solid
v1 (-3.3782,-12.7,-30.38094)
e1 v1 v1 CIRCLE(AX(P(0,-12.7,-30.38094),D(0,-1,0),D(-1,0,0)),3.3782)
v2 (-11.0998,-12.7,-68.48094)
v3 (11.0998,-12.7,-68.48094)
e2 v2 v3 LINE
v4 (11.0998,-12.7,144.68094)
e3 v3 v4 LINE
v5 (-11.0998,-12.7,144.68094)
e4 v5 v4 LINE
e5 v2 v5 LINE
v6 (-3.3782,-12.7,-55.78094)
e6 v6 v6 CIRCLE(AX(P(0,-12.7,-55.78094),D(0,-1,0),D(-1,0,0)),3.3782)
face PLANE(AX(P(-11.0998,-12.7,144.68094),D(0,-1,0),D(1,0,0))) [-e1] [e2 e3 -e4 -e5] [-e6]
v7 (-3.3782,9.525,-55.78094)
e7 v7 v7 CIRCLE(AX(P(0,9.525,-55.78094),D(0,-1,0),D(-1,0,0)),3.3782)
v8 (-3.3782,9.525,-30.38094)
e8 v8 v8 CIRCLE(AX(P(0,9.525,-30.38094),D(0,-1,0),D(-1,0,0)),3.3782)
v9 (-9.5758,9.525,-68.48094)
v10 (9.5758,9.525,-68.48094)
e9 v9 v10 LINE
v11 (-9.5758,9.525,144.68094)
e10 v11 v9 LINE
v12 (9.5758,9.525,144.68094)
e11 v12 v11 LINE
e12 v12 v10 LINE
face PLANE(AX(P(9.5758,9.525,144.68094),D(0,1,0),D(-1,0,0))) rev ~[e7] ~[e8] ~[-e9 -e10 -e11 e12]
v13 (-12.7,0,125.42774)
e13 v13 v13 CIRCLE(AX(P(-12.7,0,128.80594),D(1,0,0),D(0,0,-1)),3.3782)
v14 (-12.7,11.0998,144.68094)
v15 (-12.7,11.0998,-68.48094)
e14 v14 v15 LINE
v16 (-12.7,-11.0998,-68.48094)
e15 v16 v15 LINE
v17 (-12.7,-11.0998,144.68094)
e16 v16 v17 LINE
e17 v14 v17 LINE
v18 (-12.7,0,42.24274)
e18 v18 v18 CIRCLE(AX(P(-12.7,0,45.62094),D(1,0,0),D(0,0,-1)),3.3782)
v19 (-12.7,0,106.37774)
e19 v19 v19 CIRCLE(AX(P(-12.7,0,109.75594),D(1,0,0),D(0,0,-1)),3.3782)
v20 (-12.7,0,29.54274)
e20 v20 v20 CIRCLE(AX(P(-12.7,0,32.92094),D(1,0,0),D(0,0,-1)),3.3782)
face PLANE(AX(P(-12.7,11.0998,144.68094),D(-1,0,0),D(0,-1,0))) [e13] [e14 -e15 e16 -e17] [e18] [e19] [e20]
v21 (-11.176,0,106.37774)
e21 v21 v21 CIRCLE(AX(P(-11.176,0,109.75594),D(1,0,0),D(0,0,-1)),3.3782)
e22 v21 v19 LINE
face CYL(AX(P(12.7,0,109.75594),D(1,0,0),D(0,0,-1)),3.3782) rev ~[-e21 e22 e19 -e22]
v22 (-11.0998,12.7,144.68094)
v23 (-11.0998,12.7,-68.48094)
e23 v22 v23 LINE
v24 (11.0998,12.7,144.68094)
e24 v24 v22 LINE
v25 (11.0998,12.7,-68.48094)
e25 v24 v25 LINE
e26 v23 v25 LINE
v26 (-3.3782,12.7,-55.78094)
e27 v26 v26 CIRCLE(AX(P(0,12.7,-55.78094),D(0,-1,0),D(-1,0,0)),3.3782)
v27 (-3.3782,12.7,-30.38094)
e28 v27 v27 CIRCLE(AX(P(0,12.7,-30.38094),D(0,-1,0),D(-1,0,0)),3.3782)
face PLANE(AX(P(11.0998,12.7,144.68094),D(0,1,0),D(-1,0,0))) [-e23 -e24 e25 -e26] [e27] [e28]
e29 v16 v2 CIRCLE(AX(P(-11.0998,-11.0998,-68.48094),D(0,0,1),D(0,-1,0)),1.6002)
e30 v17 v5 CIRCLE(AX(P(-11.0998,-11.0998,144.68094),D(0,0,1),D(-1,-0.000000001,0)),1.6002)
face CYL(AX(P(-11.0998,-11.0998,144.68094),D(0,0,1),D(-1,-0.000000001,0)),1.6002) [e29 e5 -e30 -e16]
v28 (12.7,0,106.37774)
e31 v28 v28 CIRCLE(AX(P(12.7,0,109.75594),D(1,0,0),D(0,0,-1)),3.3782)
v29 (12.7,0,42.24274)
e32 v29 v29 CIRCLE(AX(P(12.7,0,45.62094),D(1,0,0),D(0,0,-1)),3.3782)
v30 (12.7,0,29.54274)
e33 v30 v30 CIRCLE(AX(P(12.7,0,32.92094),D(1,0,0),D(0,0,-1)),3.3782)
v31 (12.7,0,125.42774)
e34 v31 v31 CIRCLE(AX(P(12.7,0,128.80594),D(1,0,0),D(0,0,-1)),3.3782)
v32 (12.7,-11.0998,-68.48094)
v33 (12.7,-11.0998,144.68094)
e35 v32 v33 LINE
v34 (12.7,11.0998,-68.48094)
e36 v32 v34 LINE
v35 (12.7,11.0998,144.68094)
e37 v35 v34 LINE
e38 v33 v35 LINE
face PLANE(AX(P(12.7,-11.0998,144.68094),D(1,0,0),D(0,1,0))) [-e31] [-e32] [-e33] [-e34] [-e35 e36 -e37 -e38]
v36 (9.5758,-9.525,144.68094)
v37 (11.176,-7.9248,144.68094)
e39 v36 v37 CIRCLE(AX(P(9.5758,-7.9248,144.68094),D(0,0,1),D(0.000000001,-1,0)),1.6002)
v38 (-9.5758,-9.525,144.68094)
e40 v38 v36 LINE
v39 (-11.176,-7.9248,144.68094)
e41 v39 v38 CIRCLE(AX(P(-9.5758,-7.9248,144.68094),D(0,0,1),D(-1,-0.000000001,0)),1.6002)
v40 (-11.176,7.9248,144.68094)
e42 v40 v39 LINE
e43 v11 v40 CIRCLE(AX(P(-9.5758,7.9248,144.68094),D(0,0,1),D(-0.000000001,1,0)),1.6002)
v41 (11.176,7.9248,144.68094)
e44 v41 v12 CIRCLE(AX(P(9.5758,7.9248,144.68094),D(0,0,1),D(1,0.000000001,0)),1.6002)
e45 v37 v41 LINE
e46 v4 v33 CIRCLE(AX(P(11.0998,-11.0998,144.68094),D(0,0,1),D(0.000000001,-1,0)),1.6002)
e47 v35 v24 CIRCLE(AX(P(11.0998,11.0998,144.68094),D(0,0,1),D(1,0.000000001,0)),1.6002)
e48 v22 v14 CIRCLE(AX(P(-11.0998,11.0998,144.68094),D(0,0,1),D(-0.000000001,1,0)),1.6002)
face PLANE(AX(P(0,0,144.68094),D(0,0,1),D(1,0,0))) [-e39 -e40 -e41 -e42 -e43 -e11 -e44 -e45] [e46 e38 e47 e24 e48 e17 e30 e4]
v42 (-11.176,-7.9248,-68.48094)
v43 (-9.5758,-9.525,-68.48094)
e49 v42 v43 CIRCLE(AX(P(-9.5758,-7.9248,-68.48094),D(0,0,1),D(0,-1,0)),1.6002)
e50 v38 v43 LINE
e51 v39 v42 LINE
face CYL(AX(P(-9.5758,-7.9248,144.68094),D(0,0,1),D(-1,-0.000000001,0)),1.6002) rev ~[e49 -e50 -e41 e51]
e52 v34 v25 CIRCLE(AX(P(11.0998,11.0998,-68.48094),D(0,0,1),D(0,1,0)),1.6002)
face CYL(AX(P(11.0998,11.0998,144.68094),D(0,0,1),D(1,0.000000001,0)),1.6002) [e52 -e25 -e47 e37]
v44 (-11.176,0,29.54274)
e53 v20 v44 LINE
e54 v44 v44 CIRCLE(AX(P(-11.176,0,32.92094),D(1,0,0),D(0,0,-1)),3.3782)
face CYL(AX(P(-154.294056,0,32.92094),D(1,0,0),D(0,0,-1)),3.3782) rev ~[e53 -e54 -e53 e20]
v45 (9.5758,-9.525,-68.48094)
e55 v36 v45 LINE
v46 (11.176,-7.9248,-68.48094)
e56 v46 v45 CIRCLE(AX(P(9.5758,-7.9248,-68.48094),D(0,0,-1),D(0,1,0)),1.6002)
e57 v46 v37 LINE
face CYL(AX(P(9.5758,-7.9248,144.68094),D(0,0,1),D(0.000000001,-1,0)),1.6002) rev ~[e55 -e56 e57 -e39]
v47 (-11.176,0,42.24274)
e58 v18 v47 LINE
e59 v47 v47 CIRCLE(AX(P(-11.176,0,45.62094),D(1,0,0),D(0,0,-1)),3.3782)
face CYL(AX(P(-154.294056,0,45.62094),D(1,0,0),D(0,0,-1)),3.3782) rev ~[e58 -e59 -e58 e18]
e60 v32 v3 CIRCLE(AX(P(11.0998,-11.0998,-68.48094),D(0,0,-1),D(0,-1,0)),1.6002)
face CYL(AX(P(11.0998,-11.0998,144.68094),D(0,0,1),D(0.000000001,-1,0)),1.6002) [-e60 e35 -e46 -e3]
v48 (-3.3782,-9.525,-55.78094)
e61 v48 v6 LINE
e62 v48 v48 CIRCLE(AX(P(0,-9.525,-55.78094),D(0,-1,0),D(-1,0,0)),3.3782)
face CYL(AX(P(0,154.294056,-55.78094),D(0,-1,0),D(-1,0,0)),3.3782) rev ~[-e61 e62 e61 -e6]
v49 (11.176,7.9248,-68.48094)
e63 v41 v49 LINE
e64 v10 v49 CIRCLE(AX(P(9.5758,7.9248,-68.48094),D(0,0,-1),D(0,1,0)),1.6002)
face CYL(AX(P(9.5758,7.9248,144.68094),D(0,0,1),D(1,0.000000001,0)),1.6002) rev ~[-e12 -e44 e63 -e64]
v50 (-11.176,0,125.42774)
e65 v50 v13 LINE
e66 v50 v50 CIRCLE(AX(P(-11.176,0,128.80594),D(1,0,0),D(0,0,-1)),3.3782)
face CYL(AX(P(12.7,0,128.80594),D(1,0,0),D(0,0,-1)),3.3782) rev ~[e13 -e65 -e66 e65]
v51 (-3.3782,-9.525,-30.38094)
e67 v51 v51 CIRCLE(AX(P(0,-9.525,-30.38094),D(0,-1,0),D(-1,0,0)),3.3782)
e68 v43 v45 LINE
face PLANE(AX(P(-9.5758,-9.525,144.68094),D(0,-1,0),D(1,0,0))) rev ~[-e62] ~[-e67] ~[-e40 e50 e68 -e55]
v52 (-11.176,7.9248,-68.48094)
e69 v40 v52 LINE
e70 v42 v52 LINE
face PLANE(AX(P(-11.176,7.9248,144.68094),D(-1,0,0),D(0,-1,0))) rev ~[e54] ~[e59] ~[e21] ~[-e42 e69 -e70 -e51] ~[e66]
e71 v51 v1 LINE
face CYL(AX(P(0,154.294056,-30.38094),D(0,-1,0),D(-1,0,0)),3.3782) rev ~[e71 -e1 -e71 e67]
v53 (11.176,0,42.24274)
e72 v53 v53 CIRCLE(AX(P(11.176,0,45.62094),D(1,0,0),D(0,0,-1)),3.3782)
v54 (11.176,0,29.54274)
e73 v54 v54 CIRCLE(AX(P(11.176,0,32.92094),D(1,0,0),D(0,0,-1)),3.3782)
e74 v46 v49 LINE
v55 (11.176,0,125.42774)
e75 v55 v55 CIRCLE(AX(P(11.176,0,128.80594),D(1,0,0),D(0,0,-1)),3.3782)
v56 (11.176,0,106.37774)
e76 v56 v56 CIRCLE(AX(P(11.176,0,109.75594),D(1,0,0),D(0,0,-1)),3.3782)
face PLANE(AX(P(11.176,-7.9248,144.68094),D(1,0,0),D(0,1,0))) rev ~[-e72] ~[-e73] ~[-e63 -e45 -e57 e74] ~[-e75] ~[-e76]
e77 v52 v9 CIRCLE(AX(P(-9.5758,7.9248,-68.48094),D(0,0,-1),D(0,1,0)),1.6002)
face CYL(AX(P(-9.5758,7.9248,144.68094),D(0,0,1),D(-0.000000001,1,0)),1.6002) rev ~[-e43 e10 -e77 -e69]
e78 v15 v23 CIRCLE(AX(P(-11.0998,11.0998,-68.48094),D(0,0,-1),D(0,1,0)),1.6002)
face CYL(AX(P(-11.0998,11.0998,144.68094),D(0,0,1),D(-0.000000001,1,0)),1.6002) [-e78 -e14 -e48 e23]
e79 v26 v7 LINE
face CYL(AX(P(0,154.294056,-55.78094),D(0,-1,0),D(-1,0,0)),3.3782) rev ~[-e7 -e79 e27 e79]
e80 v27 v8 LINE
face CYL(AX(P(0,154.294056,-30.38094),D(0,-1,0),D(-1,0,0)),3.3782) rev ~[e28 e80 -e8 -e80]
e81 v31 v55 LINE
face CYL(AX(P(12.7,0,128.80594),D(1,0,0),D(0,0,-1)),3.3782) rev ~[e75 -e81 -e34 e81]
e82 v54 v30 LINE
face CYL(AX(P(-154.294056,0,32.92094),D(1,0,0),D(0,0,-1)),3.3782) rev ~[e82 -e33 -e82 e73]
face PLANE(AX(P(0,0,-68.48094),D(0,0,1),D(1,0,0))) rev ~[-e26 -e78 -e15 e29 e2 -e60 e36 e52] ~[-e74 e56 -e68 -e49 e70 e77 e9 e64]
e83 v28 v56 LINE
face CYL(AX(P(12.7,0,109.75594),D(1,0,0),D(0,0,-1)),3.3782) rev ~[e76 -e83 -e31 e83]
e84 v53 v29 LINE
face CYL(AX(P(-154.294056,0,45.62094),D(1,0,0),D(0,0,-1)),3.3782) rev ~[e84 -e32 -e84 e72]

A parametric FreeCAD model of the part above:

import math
import FreeCAD as App
import Part
import Sketcher
from FreeCAD import Vector
Q = App.Units.Quantity


def edges_at(feature, points):
    """Names of the edges that pass closest to the given points."""
    edges = feature.Shape.Edges
    near = lambda p: min(range(len(edges)), key=lambda i: edges[i].distToShape(Part.Vertex(*p))[0])
    return sorted({f"Edge{near(p) + 1}" for p in points})


def add_polygon(sketch, points):
    """Adds a closed chain of lines whose ends are joined by coincident constraints."""
    first, n = sketch.GeometryCount, len(points)
    for a, b in zip(points, points[1:] + points[:1]):
        sketch.addGeometry(Part.LineSegment(App.Vector(*a, 0), App.Vector(*b, 0)), False)
    for i in range(n):
        sketch.addConstraint(Sketcher.Constraint("Coincident", first + i, 2, first + (i + 1) % n, 1))

doc = App.newDocument("Part")
params = doc.addObject("Spreadsheet::Sheet", "Params")
for row, (alias, value) in enumerate([
    ("sketch1_width", "1 in"),
    ("sketch1_width2", "0.88 in"),
    ("sketch1_height", "0.75 in"),
    ("pad1_length", "5.3922 in"),
    ("fillet_radius", "0.063 in"),
    ("sketch2_diameter", "0.266 in"),
    ("hole_diameter", "0.266 in"),
    ("sketch3_diameter", "0.266 in"),
    ("hole2_diameter", "0.266 in"),
    ("sketch4_radius", "0.063 in"),
    ("sketch4_width", "0.754 in"),
    ("sketch4_height", "0.624 in"),
    ("pad2_length", "3 in"),
    ("sketch5_diameter", "0.266 in"),
], start=1):
    params.set(f"A{row}", alias)
    params.set(f"B{row}", "=" + value)
    params.setAlias(f"B{row}", alias)

body = doc.addObject("PartDesign::Body", "Body")

# Sketch on XY plane
sketch1 = body.newObject("Sketcher::SketchObject", "Sketch")
sketch1.AttachmentSupport = (doc.getObject("XY_Plane"), [""])
sketch1.MapMode = "FlatFace"
add_polygon(sketch1, [(-12.7, 12.7), (-12.7, -12.7), (12.7, -12.7), (12.7, 12.7)])  # lines 0-3
add_polygon(sketch1, [(11.176, -9.525), (-11.176, -9.525), (-11.176, 9.525), (11.176, 9.525)])  # lines 4-7
sketch1.addConstraint(Sketcher.Constraint("Vertical", 0))
sketch1.addConstraint(Sketcher.Constraint("Horizontal", 1))
sketch1.addConstraint(Sketcher.Constraint("Vertical", 2))
sketch1.addConstraint(Sketcher.Constraint("Horizontal", 3))
sketch1.addConstraint(Sketcher.Constraint("Horizontal", 4))
sketch1.addConstraint(Sketcher.Constraint("Vertical", 5))
sketch1.addConstraint(Sketcher.Constraint("Horizontal", 6))
sketch1.addConstraint(Sketcher.Constraint("Vertical", 7))
sketch1.addConstraint(Sketcher.Constraint("Symmetric", 0, 2, 2, 2, -1, 1))
sketch1.addConstraint(Sketcher.Constraint("Symmetric", 4, 2, 6, 2, -1, 1))
sketch1.addConstraint(Sketcher.Constraint("Equal", 3, 0))
sketch1.addConstraint(Sketcher.Constraint("DistanceX", 1, 1, 1, 2, Q("1 in")))
sketch1.addConstraint(Sketcher.Constraint("DistanceX", 4, 2, 4, 1, Q("0.88 in")))
sketch1.addConstraint(Sketcher.Constraint("DistanceY", 5, 1, 5, 2, Q("0.75 in")))
sketch1.setExpression("Constraints[19]", "Params.sketch1_width")
sketch1.setExpression("Constraints[20]", "Params.sketch1_width2")
sketch1.setExpression("Constraints[21]", "Params.sketch1_height")
pad1 = body.newObject("PartDesign::Pad", "Pad")
pad1.Profile = sketch1
pad1.setExpression("Length", "Params.pad1_length")
pad1.Midplane = True
doc.recompute()

fillet = body.newObject("PartDesign::Fillet", "Fillet")
fillet.Base = (pad1, edges_at(pad1, [
    (11.176, -9.525, 0),
    (11.176, 9.525, 0),
    (-11.176, 9.525, 0),
    (-11.176, -9.525, 0),
    (12.7, -12.7, 0),
    (-12.7, -12.7, 0),
    (-12.7, 12.7, 0),
    (12.7, 12.7, 0),
]))
fillet.setExpression("Radius", "Params.fillet_radius")

# Sketch on YZ plane
sketch2 = body.newObject("Sketcher::SketchObject", "Sketch001")
sketch2.AttachmentSupport = (doc.getObject("YZ_Plane"), [""])
sketch2.MapMode = "FlatFace"
sketch2.AttachmentOffset = App.Placement(Vector(0, 0, -0.5 * 25.4), App.Rotation())
sketch2.addGeometry(Part.Circle(Vector(0, 32.92094, 0), Vector(0, 0, 1), 3.3782), False)
sketch2.addGeometry(Part.Circle(Vector(0, 45.62094, 0), Vector(0, 0, 1), 3.3782), False)
sketch2.addConstraint(Sketcher.Constraint("Equal", 0, 1))
sketch2.addConstraint(Sketcher.Constraint("PointOnObject", 0, 3, -2))
sketch2.addConstraint(Sketcher.Constraint("PointOnObject", 1, 3, -2))
sketch2.addConstraint(Sketcher.Constraint("Diameter", 0, Q("0.266 in")))
sketch2.addConstraint(Sketcher.Constraint("DistanceY", 0, 3, 1, 3, Q("0.5 in")))
sketch2.addConstraint(Sketcher.Constraint("DistanceY", -1, 1, 0, 3, Q("1.2961 in")))
sketch2.setExpression("Constraints[3]", "Params.sketch2_diameter")
doc.recompute()
hole = body.newObject("PartDesign::Hole", "Hole")
hole.Profile = sketch2
hole.ThreadType = "None"
hole.setExpression("Diameter", "Params.hole_diameter")
hole.DepthType = "ThroughAll"
hole.Reversed = True

# Sketch on XZ plane
sketch3 = body.newObject("Sketcher::SketchObject", "Sketch002")
sketch3.AttachmentSupport = (doc.getObject("XZ_Plane"), [""])
sketch3.MapMode = "FlatFace"
sketch3.AttachmentOffset = App.Placement(Vector(0, 0, -0.5 * 25.4), App.Rotation())
sketch3.addGeometry(Part.Circle(Vector(0, -55.78094, 0), Vector(0, 0, 1), 3.3782), False)
sketch3.addGeometry(Part.Circle(Vector(0, -30.38094, 0), Vector(0, 0, 1), 3.3782), False)
sketch3.addConstraint(Sketcher.Constraint("Equal", 0, 1))
sketch3.addConstraint(Sketcher.Constraint("PointOnObject", 0, 3, -2))
sketch3.addConstraint(Sketcher.Constraint("PointOnObject", 1, 3, -2))
sketch3.addConstraint(Sketcher.Constraint("Diameter", 0, Q("0.266 in")))
sketch3.addConstraint(Sketcher.Constraint("DistanceY", 0, 3, 1, 3, Q("1 in")))
sketch3.addConstraint(Sketcher.Constraint("DistanceY", 0, 3, -1, 1, Q("2.1961 in")))
sketch3.setExpression("Constraints[3]", "Params.sketch3_diameter")
doc.recompute()
hole2 = body.newObject("PartDesign::Hole", "Hole001")
hole2.Profile = sketch3
hole2.ThreadType = "None"
hole2.setExpression("Diameter", "Params.hole2_diameter")
hole2.DepthType = "ThroughAll"
hole2.Reversed = True

# Sketch on XY plane
sketch4 = body.newObject("Sketcher::SketchObject", "Sketch003")
sketch4.AttachmentSupport = (doc.getObject("XY_Plane"), [""])
sketch4.MapMode = "FlatFace"
sketch4.AttachmentOffset = App.Placement(Vector(0, 0, 5.6961 * 25.4), App.Rotation())
sketch4.addGeometry(Part.LineSegment(Vector(-12.7, 11.0998, 0), Vector(-12.7, -11.0998, 0)), False)
sketch4.addGeometry(Part.ArcOfCircle(Part.Circle(Vector(-11.0998, -11.0998, 0), Vector(0, 0, 1), 1.6002), math.radians(-180), math.radians(-90)), False)
sketch4.addGeometry(Part.LineSegment(Vector(-11.0998, -12.7, 0), Vector(11.0998, -12.7, 0)), False)
sketch4.addGeometry(Part.ArcOfCircle(Part.Circle(Vector(11.0998, -11.0998, 0), Vector(0, 0, 1), 1.6002), math.radians(-90), math.radians(0)), False)
sketch4.addGeometry(Part.LineSegment(Vector(12.7, -11.0998, 0), Vector(12.7, 11.0998, 0)), False)
sketch4.addGeometry(Part.ArcOfCircle(Part.Circle(Vector(11.0998, 11.0998, 0), Vector(0, 0, 1), 1.6002), math.radians(0), math.radians(90)), False)
sketch4.addGeometry(Part.LineSegment(Vector(11.0998, 12.7, 0), Vector(-11.0998, 12.7, 0)), False)
sketch4.addGeometry(Part.ArcOfCircle(Part.Circle(Vector(-11.0998, 11.0998, 0), Vector(0, 0, 1), 1.6002), math.radians(90), math.radians(180)), False)
sketch4.addGeometry(Part.LineSegment(Vector(11.176, 7.9248, 0), Vector(11.176, -7.9248, 0)), False)
sketch4.addGeometry(Part.ArcOfCircle(Part.Circle(Vector(9.5758, -7.9248, 0), Vector(0, 0, 1), 1.6002), math.radians(-90), math.radians(0)), False)
sketch4.addGeometry(Part.LineSegment(Vector(9.5758, -9.525, 0), Vector(-9.5758, -9.525, 0)), False)
sketch4.addGeometry(Part.ArcOfCircle(Part.Circle(Vector(-9.5758, -7.9248, 0), Vector(0, 0, 1), 1.6002), math.radians(-180), math.radians(-90)), False)
sketch4.addGeometry(Part.LineSegment(Vector(-11.176, -7.9248, 0), Vector(-11.176, 7.9248, 0)), False)
sketch4.addGeometry(Part.ArcOfCircle(Part.Circle(Vector(-9.5758, 7.9248, 0), Vector(0, 0, 1), 1.6002), math.radians(90), math.radians(180)), False)
sketch4.addGeometry(Part.LineSegment(Vector(-9.5758, 9.525, 0), Vector(9.5758, 9.525, 0)), False)
sketch4.addGeometry(Part.ArcOfCircle(Part.Circle(Vector(9.5758, 7.9248, 0), Vector(0, 0, 1), 1.6002), math.radians(0), math.radians(90)), False)
sketch4.addConstraint(Sketcher.Constraint("Tangent", 0, 2, 1, 1))
sketch4.addConstraint(Sketcher.Constraint("Tangent", 1, 2, 2, 1))
sketch4.addConstraint(Sketcher.Constraint("Tangent", 2, 2, 3, 1))
sketch4.addConstraint(Sketcher.Constraint("Tangent", 3, 2, 4, 1))
sketch4.addConstraint(Sketcher.Constraint("Tangent", 4, 2, 5, 1))
sketch4.addConstraint(Sketcher.Constraint("Tangent", 5, 2, 6, 1))
sketch4.addConstraint(Sketcher.Constraint("Tangent", 6, 2, 7, 1))
sketch4.addConstraint(Sketcher.Constraint("Tangent", 7, 2, 0, 1))
sketch4.addConstraint(Sketcher.Constraint("Tangent", 8, 2, 9, 2))
sketch4.addConstraint(Sketcher.Constraint("Tangent", 9, 1, 10, 1))
sketch4.addConstraint(Sketcher.Constraint("Tangent", 10, 2, 11, 2))
sketch4.addConstraint(Sketcher.Constraint("Tangent", 11, 1, 12, 1))
sketch4.addConstraint(Sketcher.Constraint("Tangent", 12, 2, 13, 2))
sketch4.addConstraint(Sketcher.Constraint("Tangent", 13, 1, 14, 1))
sketch4.addConstraint(Sketcher.Constraint("Tangent", 14, 2, 15, 2))
sketch4.addConstraint(Sketcher.Constraint("Tangent", 15, 1, 8, 1))
sketch4.addConstraint(Sketcher.Constraint("Vertical", 0))
sketch4.addConstraint(Sketcher.Constraint("Horizontal", 2))
sketch4.addConstraint(Sketcher.Constraint("Vertical", 4))
sketch4.addConstraint(Sketcher.Constraint("Horizontal", 6))
sketch4.addConstraint(Sketcher.Constraint("Vertical", 8))
sketch4.addConstraint(Sketcher.Constraint("Horizontal", 10))
sketch4.addConstraint(Sketcher.Constraint("Vertical", 12))
sketch4.addConstraint(Sketcher.Constraint("Horizontal", 14))
sketch4.addConstraint(Sketcher.Constraint("Equal", 1, 3))
sketch4.addConstraint(Sketcher.Constraint("Equal", 3, 5))
sketch4.addConstraint(Sketcher.Constraint("Equal", 5, 7))
sketch4.addConstraint(Sketcher.Constraint("Equal", 7, 9))
sketch4.addConstraint(Sketcher.Constraint("Equal", 9, 11))
sketch4.addConstraint(Sketcher.Constraint("Equal", 11, 13))
sketch4.addConstraint(Sketcher.Constraint("Equal", 13, 15))
sketch4.addConstraint(Sketcher.Constraint("Symmetric", 1, 3, 5, 3, -1, 1))
sketch4.addConstraint(Sketcher.Constraint("Symmetric", 9, 3, 13, 3, -1, 1))
sketch4.addConstraint(Sketcher.Constraint("Equal", 6, 0))
sketch4.addConstraint(Sketcher.Constraint("Radius", 1, Q("0.063 in")))
sketch4.addConstraint(Sketcher.Constraint("DistanceX", 0, 2, -1, 1, Q("0.5 in")))
sketch4.addConstraint(Sketcher.Constraint("DistanceX", 10, 2, 10, 1, Q("0.754 in")))
sketch4.addConstraint(Sketcher.Constraint("DistanceY", 8, 2, 8, 1, Q("0.624 in")))
sketch4.setExpression("Constraints[34]", "Params.sketch4_radius")
sketch4.setExpression("Constraints[36]", "Params.sketch4_width")
sketch4.setExpression("Constraints[37]", "Params.sketch4_height")
pad2 = body.newObject("PartDesign::Pad", "Pad001")
pad2.Profile = sketch4
pad2.setExpression("Length", "Params.pad2_length")
pad2.Reversed = True

# Sketch on YZ plane
sketch5 = body.newObject("Sketcher::SketchObject", "Sketch004")
sketch5.AttachmentSupport = (doc.getObject("YZ_Plane"), [""])
sketch5.MapMode = "FlatFace"
sketch5.AttachmentOffset = App.Placement(Vector(0, 0, 0.5 * 25.4), App.Rotation())
sketch5.addGeometry(Part.Circle(Vector(0, 109.75594, 0), Vector(0, 0, 1), 3.3782), False)
sketch5.addGeometry(Part.Circle(Vector(0, 128.80594, 0), Vector(0, 0, 1), 3.3782), False)
sketch5.addConstraint(Sketcher.Constraint("Equal", 0, 1))
sketch5.addConstraint(Sketcher.Constraint("PointOnObject", 0, 3, -2))
sketch5.addConstraint(Sketcher.Constraint("PointOnObject", 1, 3, -2))
sketch5.addConstraint(Sketcher.Constraint("Diameter", 0, Q("0.266 in")))
sketch5.addConstraint(Sketcher.Constraint("DistanceY", 0, 3, 1, 3, Q("0.75 in")))
sketch5.addConstraint(Sketcher.Constraint("DistanceY", -1, 1, 0, 3, Q("4.3211 in")))
sketch5.setExpression("Constraints[3]", "Params.sketch5_diameter")
pocket1 = body.newObject("PartDesign::Pocket", "Pocket")
pocket1.Profile = sketch5
pocket1.Type = "ThroughAll"

doc.recompute()
